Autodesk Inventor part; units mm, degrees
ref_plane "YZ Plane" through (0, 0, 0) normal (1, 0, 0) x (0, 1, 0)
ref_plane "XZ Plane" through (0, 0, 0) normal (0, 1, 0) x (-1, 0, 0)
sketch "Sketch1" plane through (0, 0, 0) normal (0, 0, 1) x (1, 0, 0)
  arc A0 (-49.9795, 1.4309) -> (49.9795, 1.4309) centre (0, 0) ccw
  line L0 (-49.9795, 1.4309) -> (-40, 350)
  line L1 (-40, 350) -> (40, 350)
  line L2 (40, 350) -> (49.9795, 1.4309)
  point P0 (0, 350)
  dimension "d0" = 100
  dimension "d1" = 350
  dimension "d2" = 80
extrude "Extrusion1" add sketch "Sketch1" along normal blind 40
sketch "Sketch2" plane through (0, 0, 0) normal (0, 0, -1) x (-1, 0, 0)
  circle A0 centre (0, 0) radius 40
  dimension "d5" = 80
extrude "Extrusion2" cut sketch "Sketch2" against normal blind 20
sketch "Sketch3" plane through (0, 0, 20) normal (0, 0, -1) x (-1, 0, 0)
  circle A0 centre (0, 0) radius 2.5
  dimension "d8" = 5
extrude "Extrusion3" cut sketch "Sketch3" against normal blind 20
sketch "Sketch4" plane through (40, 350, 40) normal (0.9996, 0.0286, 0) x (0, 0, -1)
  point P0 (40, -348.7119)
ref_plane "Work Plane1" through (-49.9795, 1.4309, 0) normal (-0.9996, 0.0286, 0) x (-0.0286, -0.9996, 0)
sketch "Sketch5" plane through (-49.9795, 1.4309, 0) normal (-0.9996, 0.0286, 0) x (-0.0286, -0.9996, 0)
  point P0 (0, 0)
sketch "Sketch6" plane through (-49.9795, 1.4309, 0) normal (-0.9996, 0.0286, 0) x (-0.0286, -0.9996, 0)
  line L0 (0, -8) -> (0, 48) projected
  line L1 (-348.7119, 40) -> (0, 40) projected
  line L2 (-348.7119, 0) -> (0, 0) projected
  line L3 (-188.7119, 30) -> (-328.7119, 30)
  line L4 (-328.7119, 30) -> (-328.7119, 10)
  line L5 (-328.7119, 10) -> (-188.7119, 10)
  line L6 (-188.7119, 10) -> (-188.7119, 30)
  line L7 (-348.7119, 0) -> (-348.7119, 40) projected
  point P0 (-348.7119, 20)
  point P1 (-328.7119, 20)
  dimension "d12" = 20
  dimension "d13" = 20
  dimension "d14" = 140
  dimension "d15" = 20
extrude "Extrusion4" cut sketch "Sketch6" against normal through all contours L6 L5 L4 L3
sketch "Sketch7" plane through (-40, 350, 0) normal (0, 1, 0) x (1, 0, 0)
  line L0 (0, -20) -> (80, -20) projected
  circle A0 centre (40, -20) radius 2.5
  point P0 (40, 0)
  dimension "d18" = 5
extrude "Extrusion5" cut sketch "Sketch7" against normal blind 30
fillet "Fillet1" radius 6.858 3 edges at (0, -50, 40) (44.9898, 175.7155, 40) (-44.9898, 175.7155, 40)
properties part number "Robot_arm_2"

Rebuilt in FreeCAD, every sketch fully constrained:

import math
import FreeCAD as App
import Part
import Sketcher

V = App.Vector
Q = App.Units.Quantity


def edges_at(feature, points):
    """Names of the edges that pass closest to the given points."""
    edges = feature.Shape.Edges
    near = lambda p: min(range(len(edges)), key=lambda i: edges[i].distToShape(Part.Vertex(*p))[0])
    return sorted({f"Edge{near(p) + 1}" for p in points})

doc = App.newDocument("Part")
body = doc.addObject("PartDesign::Body", "Body")

# Sketch on XY plane
sketch1 = body.newObject("Sketcher::SketchObject", "Sketch")
sketch1.AttachmentSupport = (doc.getObject("XY_Plane"), [""])
sketch1.MapMode = "FlatFace"
sketch1.addGeometry([
    Part.LineSegment(V(-40, 350, 0), V(-50, 1, 0)),
    Part.ArcOfCircle(Part.Circle(V(0, 0, 0), V(0, 0, 1), 50), math.radians(178), math.radians(362)),
    Part.LineSegment(V(50, 1, 0), V(40, 350, 0)),
    Part.LineSegment(V(40, 350, 0), V(-40, 350, 0)),
], False)
sketch1.addConstraint([
    Sketcher.Constraint("Tangent", 0, 2, 1, 1),
    Sketcher.Constraint("Tangent", 1, 2, 2, 1),
    Sketcher.Constraint("Coincident", 2, 2, 3, 1),
    Sketcher.Constraint("Coincident", 3, 2, 0, 1),
    Sketcher.Constraint("Horizontal", 3),
    Sketcher.Constraint("Coincident", 1, 3, -1, 1),
    Sketcher.Constraint("Horizontal", 0, 2, 1, 2),
    Sketcher.Constraint("Radius", 1, Q("1.9685 in")),
    Sketcher.Constraint("DistanceX", 3, 2, 3, 1, Q("3.1496 in")),
    Sketcher.Constraint("DistanceY", -1, 1, 2, 2, Q("350 mm")),
])
pad1 = body.newObject("PartDesign::Pad", "Pad")
pad1.Profile = sketch1
pad1.Length = Q("1.5748031 in")

# Sketch on XY plane
sketch2 = body.newObject("Sketcher::SketchObject", "Sketch001")
sketch2.AttachmentSupport = (doc.getObject("XY_Plane"), [""])
sketch2.MapMode = "FlatFace"
sketch2.addGeometry(Part.Circle(V(0, 0, 0), V(0, 0, 1), 40), False)
sketch2.addConstraint([
    Sketcher.Constraint("Coincident", 0, 3, -1, 1),
    Sketcher.Constraint("Diameter", 0, Q("3.1496 in")),
])
pocket1 = body.newObject("PartDesign::Pocket", "Pocket")
pocket1.Profile = sketch2
pocket1.Length = Q("0.7874016 in")
pocket1.Reversed = True

# Sketch on XY plane
sketch3 = body.newObject("Sketcher::SketchObject", "Sketch002")
sketch3.AttachmentSupport = (doc.getObject("XY_Plane"), [""])
sketch3.MapMode = "FlatFace"
sketch3.AttachmentOffset = App.Placement(V(0, 0, 0.7874016 * 25.4), App.Rotation())
sketch3.addGeometry(Part.Circle(V(0, 0, 0), V(0, 0, 1), 2.5), False)
sketch3.addConstraint([
    Sketcher.Constraint("Coincident", 0, 3, -1, 1),
    Sketcher.Constraint("Diameter", 0, Q("5 mm")),
])
pocket2 = body.newObject("PartDesign::Pocket", "Pocket001")
pocket2.Profile = sketch3
pocket2.Length = Q("0.7874016 in")
pocket2.Reversed = True

# Sketch on an angled plane
sketch4 = body.newObject("Sketcher::SketchObject", "Sketch003")
sketch4.Placement = App.Placement(V(-49.9795, 1.4309, 0), App.Rotation(V(-0.028599741, -0.999590944, 0), V(0, 0, 1.000000001), V(-0.999590944, 0.028599741, 0), "ZXY"))
sketch4.addGeometry([
    Part.LineSegment(V(-189, 10, 0), V(-189, 30, 0)),
    Part.LineSegment(V(-189, 30, 0), V(-329, 30, 0)),
    Part.LineSegment(V(-329, 30, 0), V(-329, 10, 0)),
    Part.LineSegment(V(-329, 10, 0), V(-189, 10, 0)),
], False)
sketch4.addConstraint([
    Sketcher.Constraint("Coincident", 0, 2, 1, 1),
    Sketcher.Constraint("Coincident", 1, 2, 2, 1),
    Sketcher.Constraint("Coincident", 2, 2, 3, 1),
    Sketcher.Constraint("Coincident", 3, 2, 0, 1),
    Sketcher.Constraint("Vertical", 0),
    Sketcher.Constraint("Horizontal", 1),
    Sketcher.Constraint("Vertical", 2),
    Sketcher.Constraint("Horizontal", 3),
    Sketcher.Constraint("DistanceX", 1, 2, 1, 1, Q("5.5118 in")),
    Sketcher.Constraint("DistanceY", 0, 1, 0, 2, Q("0.7874 in")),
    Sketcher.Constraint("DistanceX", 0, 2, -1, 1, Q("7.4296 in")),
    Sketcher.Constraint("DistanceY", -1, 1, 0, 2, Q("1.1811 in")),
])
pocket3 = body.newObject("PartDesign::Pocket", "Pocket002")
pocket3.Profile = sketch4
pocket3.Type = "ThroughAll"

# Sketch on XZ plane
sketch5 = body.newObject("Sketcher::SketchObject", "Sketch004")
sketch5.AttachmentSupport = (doc.getObject("XZ_Plane"), [""])
sketch5.MapMode = "FlatFace"
sketch5.AttachmentOffset = App.Placement(V(0, 0, -350), App.Rotation())
sketch5.addGeometry(Part.Circle(V(0, 20, 0), V(0, 0, 1), 2.5), False)
sketch5.addConstraint([
    Sketcher.Constraint("PointOnObject", 0, 3, -2),
    Sketcher.Constraint("Diameter", 0, Q("5 mm")),
    Sketcher.Constraint("DistanceY", -1, 1, 0, 3, Q("0.7874 in")),
])
pocket4 = body.newObject("PartDesign::Pocket", "Pocket003")
pocket4.Profile = sketch5
pocket4.Length = Q("1.1811024 in")
pocket4.Reversed = True
doc.recompute()

fillet = body.newObject("PartDesign::Fillet", "Fillet")
fillet.Base = (pocket4, edges_at(pocket4, [(0, -50, 40), (44.99, 175.715, 40), (-44.99, 175.715, 40)]))
fillet.Radius = Q("0.27 in")

doc.recompute()
